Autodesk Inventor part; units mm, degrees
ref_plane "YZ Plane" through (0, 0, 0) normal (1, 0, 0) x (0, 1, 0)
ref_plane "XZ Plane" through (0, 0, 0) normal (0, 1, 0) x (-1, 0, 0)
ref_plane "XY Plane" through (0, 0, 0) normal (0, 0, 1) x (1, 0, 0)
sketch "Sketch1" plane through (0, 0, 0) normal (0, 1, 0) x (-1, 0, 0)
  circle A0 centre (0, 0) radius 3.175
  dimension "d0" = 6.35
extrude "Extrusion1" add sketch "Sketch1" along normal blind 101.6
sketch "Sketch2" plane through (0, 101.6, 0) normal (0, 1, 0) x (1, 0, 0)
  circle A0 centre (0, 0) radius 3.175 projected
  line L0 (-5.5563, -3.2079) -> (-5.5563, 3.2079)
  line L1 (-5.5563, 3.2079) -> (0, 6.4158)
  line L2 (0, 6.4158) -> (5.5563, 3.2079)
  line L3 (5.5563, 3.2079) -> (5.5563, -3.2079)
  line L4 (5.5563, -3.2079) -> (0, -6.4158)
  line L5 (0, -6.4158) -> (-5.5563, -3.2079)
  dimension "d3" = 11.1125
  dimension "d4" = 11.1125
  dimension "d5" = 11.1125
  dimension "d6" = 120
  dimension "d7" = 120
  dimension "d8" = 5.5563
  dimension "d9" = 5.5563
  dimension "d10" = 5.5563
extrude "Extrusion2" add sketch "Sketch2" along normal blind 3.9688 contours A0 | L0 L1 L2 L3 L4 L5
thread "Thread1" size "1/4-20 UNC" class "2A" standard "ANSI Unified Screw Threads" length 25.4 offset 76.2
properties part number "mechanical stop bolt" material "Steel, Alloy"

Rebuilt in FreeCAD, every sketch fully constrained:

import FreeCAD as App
import Part
import Sketcher

V = App.Vector
Q = App.Units.Quantity


def add_polygon(sketch, points):
    """Adds a closed chain of lines whose ends are joined by coincident constraints."""
    first, n = sketch.GeometryCount, len(points)
    for a, b in zip(points, points[1:] + points[:1]):
        sketch.addGeometry(Part.LineSegment(App.Vector(*a, 0), App.Vector(*b, 0)), False)
    for i in range(n):
        sketch.addConstraint(Sketcher.Constraint("Coincident", first + i, 2, first + (i + 1) % n, 1))

doc = App.newDocument("Part")
body = doc.addObject("PartDesign::Body", "Body")

# Sketch on XZ plane
sketch1 = body.newObject("Sketcher::SketchObject", "Sketch")
sketch1.AttachmentSupport = (doc.getObject("XZ_Plane"), [""])
sketch1.MapMode = "FlatFace"
sketch1.addGeometry(Part.Circle(V(0, 0, 0), V(0, 0, 1), 3.175), False)
sketch1.addConstraint(Sketcher.Constraint("Coincident", 0, 3, -1, 1))
sketch1.addConstraint(Sketcher.Constraint("Diameter", 0, Q("0.25 in")))
pad1 = body.newObject("PartDesign::Pad", "Pad")
pad1.Profile = sketch1
pad1.Length = Q("4 in")
pad1.Reversed = True

# Sketch on XZ plane
sketch2 = body.newObject("Sketcher::SketchObject", "Sketch001")
sketch2.AttachmentSupport = (doc.getObject("XZ_Plane"), [""])
sketch2.MapMode = "FlatFace"
sketch2.AttachmentOffset = App.Placement(V(0, 0, -4 * 25.4), App.Rotation())
add_polygon(sketch2, [(-5.5563, -3.2079), (-5.5563, 3.2079), (0, 6.4158), (5.5563, 3.2079), (5.5563, -3.2079), (0, -6.4158)])  # lines 0-5
sketch2.addConstraint(Sketcher.Constraint("Vertical", 0))
sketch2.addConstraint(Sketcher.Constraint("Vertical", 3))
sketch2.addConstraint(Sketcher.Constraint("Symmetric", 0, 2, 3, 2, -1, 1))
sketch2.addConstraint(Sketcher.Constraint("Symmetric", 1, 2, 4, 2, -1, 1))
sketch2.addConstraint(Sketcher.Constraint("PointOnObject", 1, 2, -2))
sketch2.addConstraint(Sketcher.Constraint("Parallel", 2, 5))
sketch2.addConstraint(Sketcher.Constraint("Horizontal", 0, 2, 2, 2))
sketch2.addConstraint(Sketcher.Constraint("DistanceX", 0, 2, -1, 1, Q("0.218752 in")))
sketch2.addConstraint(Sketcher.Constraint("Angle", 1, Q("29.9998 deg")))
sketch2.addConstraint(Sketcher.Constraint("DistanceY", 0, 1, 0, 2, Q("0.2526 in")))
pad2 = body.newObject("PartDesign::Pad", "Pad001")
pad2.Profile = sketch2
pad2.Length = Q("0.156252 in")
pad2.Reversed = True

doc.recompute()
